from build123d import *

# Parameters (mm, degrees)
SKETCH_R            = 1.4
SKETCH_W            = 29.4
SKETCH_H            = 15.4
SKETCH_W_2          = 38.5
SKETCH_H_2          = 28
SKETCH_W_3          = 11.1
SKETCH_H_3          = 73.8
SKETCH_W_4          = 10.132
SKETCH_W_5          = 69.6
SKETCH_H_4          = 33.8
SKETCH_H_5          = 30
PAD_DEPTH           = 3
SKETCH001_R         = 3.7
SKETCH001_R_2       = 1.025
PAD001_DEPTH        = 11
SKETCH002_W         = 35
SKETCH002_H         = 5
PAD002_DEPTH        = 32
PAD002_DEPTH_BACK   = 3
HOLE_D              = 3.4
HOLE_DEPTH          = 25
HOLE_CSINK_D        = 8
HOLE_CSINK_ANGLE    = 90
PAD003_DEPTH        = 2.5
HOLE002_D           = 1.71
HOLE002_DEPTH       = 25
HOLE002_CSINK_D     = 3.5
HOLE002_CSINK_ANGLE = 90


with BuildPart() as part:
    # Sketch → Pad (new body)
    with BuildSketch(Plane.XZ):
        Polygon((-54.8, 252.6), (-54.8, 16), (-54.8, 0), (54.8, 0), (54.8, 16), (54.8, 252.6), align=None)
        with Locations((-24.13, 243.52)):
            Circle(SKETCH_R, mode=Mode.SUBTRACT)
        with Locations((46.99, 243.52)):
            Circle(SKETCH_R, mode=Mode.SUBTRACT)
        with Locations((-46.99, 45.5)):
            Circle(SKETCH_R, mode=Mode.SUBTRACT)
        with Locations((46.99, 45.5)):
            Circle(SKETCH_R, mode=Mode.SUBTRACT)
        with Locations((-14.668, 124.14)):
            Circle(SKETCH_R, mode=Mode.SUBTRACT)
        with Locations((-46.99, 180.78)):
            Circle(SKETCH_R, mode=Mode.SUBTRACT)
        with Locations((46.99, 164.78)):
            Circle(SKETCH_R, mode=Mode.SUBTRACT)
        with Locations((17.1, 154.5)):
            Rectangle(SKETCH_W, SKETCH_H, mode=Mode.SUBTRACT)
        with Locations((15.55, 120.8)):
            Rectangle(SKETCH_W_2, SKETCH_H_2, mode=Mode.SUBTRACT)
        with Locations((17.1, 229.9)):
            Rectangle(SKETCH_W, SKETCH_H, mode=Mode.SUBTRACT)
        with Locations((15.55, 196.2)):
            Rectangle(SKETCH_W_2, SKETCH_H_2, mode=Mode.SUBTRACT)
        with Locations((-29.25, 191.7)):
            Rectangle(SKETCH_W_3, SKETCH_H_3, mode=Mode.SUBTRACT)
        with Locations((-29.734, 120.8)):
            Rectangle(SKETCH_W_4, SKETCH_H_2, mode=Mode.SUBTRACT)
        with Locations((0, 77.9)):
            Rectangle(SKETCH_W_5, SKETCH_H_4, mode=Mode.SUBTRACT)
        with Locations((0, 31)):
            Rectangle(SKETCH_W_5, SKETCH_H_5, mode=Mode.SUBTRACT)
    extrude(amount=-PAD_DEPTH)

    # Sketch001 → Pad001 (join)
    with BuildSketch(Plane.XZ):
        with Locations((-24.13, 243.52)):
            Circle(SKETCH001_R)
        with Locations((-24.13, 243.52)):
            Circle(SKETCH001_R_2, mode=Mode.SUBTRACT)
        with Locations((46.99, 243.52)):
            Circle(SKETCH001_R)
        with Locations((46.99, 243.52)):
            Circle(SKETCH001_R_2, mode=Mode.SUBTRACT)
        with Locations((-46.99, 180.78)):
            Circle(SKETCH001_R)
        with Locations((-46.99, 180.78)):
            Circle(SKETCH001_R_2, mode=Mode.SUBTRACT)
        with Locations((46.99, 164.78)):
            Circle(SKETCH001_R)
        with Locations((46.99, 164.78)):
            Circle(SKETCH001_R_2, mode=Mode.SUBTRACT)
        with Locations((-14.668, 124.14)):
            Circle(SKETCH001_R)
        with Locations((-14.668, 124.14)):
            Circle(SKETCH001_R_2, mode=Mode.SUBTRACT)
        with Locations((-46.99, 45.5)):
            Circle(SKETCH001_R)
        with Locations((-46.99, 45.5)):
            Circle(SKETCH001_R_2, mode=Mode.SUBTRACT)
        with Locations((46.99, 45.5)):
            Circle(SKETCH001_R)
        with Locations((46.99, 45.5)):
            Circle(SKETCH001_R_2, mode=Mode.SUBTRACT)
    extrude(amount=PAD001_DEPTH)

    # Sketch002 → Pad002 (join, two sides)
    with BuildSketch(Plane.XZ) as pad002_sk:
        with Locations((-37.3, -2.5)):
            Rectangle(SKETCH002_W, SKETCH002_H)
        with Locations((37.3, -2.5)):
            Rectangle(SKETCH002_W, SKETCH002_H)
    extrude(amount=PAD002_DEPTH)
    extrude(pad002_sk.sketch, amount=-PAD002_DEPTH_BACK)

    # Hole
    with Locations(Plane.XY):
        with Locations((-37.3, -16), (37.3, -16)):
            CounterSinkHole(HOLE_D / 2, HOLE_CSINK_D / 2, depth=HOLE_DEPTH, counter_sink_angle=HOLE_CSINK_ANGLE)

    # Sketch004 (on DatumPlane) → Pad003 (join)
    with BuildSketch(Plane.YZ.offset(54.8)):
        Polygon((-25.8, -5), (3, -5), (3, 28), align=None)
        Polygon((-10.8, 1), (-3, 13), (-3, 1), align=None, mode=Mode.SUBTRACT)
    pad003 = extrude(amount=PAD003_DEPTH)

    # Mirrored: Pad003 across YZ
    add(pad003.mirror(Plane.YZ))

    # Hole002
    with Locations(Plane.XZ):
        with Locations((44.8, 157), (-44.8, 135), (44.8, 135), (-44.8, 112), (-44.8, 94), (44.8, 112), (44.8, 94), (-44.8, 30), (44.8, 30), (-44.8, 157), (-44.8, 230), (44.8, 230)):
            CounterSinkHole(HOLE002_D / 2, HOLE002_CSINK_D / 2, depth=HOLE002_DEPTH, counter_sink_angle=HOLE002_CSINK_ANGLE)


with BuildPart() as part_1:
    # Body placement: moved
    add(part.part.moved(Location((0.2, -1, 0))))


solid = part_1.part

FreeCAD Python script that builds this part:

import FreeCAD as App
import Part
import Sketcher

doc = App.newDocument("Part")
body = doc.addObject("PartDesign::Body", "Body")

sketch1 = body.newObject("Sketcher::SketchObject", "Sketch")
sketch1.AttachmentSupport = (doc.getObject("XZ_Plane"), [""])
sketch1.MapMode = "FlatFace"
sketch1.addGeometry(Part.LineSegment(App.Vector(-54.8, 252.6, 0), App.Vector(-54.8, 0, 0)), False)
sketch1.addGeometry(Part.LineSegment(App.Vector(-54.8, 0, 0), App.Vector(54.8, 0, 0)), False)
sketch1.addGeometry(Part.LineSegment(App.Vector(54.8, 0, 0), App.Vector(54.8, 252.6, 0)), False)
sketch1.addGeometry(Part.LineSegment(App.Vector(54.8, 252.6, 0), App.Vector(-54.8, 252.6, 0)), False)
sketch1.addGeometry(Part.Circle(App.Vector(-46.99, 45.5, 0), App.Vector(0, 0, 1), 1.4), False)
sketch1.addGeometry(Part.LineSegment(App.Vector(-24.668, 106.8, 0), App.Vector(-34.8, 106.8, 0)), False)
sketch1.addGeometry(Part.LineSegment(App.Vector(-34.8, 106.8, 0), App.Vector(-34.8, 134.8, 0)), False)
sketch1.addGeometry(Part.LineSegment(App.Vector(-34.8, 134.8, 0), App.Vector(-24.668, 134.8, 0)), False)
sketch1.addGeometry(Part.LineSegment(App.Vector(-24.668, 134.8, 0), App.Vector(-24.668, 106.8, 0)), False)
sketch1.addGeometry(Part.Circle(App.Vector(-14.668, 124.14, 0), App.Vector(0, 0, 1), 1.4), False)
sketch1.addGeometry(Part.LineSegment(App.Vector(34.8, 16, 0), App.Vector(-34.8, 16, 0)), False)
sketch1.addGeometry(Part.LineSegment(App.Vector(-34.8, 16, 0), App.Vector(-34.8, 46, 0)), False)
sketch1.addGeometry(Part.LineSegment(App.Vector(-34.8, 46, 0), App.Vector(34.8, 46, 0)), False)
sketch1.addGeometry(Part.LineSegment(App.Vector(34.8, 46, 0), App.Vector(34.8, 16, 0)), False)
sketch1.addGeometry(Part.Circle(App.Vector(46.99, 45.5, 0), App.Vector(0, 0, 1), 1.4), False)
sketch1.addGeometry(Part.LineSegment(App.Vector(34.8, 61, 0), App.Vector(-34.8, 61, 0)), False)
sketch1.addGeometry(Part.LineSegment(App.Vector(-34.8, 61, 0), App.Vector(-34.8, 94.8, 0)), False)
sketch1.addGeometry(Part.LineSegment(App.Vector(-34.8, 94.8, 0), App.Vector(34.8, 94.8, 0)), False)
sketch1.addGeometry(Part.LineSegment(App.Vector(34.8, 94.8, 0), App.Vector(34.8, 61, 0)), False)
sketch1.addGeometry(Part.LineSegment(App.Vector(34.8, 106.8, 0), App.Vector(-3.7, 106.8, 0)), False)
sketch1.addGeometry(Part.LineSegment(App.Vector(-3.7, 106.8, 0), App.Vector(-3.7, 134.8, 0)), False)
sketch1.addGeometry(Part.LineSegment(App.Vector(-3.7, 134.8, 0), App.Vector(34.8, 134.8, 0)), False)
sketch1.addGeometry(Part.LineSegment(App.Vector(34.8, 134.8, 0), App.Vector(34.8, 106.8, 0)), False)
sketch1.addGeometry(Part.Circle(App.Vector(-46.99, 180.78, 0), App.Vector(0, 0, 1), 1.4), False)
sketch1.addGeometry(Part.LineSegment(App.Vector(-23.7, 154.8, 0), App.Vector(-34.8, 154.8, 0)), False)
sketch1.addGeometry(Part.LineSegment(App.Vector(-34.8, 154.8, 0), App.Vector(-34.8, 228.6, 0)), False)
sketch1.addGeometry(Part.LineSegment(App.Vector(-34.8, 228.6, 0), App.Vector(-23.7, 228.6, 0)), False)
sketch1.addGeometry(Part.LineSegment(App.Vector(-23.7, 228.6, 0), App.Vector(-23.7, 154.8, 0)), False)
sketch1.addGeometry(Part.Circle(App.Vector(-24.13, 243.52, 0), App.Vector(0, 0, 1), 1.4), False)
sketch1.addGeometry(Part.LineSegment(App.Vector(31.8, 146.8, 0), App.Vector(2.4, 146.8, 0)), False)
sketch1.addGeometry(Part.LineSegment(App.Vector(2.4, 146.8, 0), App.Vector(2.4, 162.2, 0)), False)
sketch1.addGeometry(Part.LineSegment(App.Vector(2.4, 162.2, 0), App.Vector(31.8, 162.2, 0)), False)
sketch1.addGeometry(Part.LineSegment(App.Vector(31.8, 162.2, 0), App.Vector(31.8, 146.8, 0)), False)
sketch1.addGeometry(Part.Circle(App.Vector(46.99, 164.78, 0), App.Vector(0, 0, 1), 1.4), False)
sketch1.addGeometry(Part.LineSegment(App.Vector(34.8, 182.2, 0), App.Vector(-3.7, 182.2, 0)), False)
sketch1.addGeometry(Part.LineSegment(App.Vector(-3.7, 182.2, 0), App.Vector(-3.7, 210.2, 0)), False)
sketch1.addGeometry(Part.LineSegment(App.Vector(-3.7, 210.2, 0), App.Vector(34.8, 210.2, 0)), False)
sketch1.addGeometry(Part.LineSegment(App.Vector(34.8, 210.2, 0), App.Vector(34.8, 182.2, 0)), False)
sketch1.addGeometry(Part.LineSegment(App.Vector(31.8, 222.2, 0), App.Vector(2.4, 222.2, 0)), False)
sketch1.addGeometry(Part.LineSegment(App.Vector(2.4, 222.2, 0), App.Vector(2.4, 237.6, 0)), False)
sketch1.addGeometry(Part.LineSegment(App.Vector(2.4, 237.6, 0), App.Vector(31.8, 237.6, 0)), False)
sketch1.addGeometry(Part.LineSegment(App.Vector(31.8, 237.6, 0), App.Vector(31.8, 222.2, 0)), False)
sketch1.addGeometry(Part.Circle(App.Vector(46.99, 243.52, 0), App.Vector(0, 0, 1), 1.4), False)
sketch1.addConstraint(Sketcher.Constraint("Coincident", 0, 2, 1, 1))
sketch1.addConstraint(Sketcher.Constraint("Coincident", 1, 2, 2, 1))
sketch1.addConstraint(Sketcher.Constraint("Coincident", 2, 2, 3, 1))
sketch1.addConstraint(Sketcher.Constraint("Coincident", 3, 2, 0, 1))
sketch1.addConstraint(Sketcher.Constraint("Coincident", 5, 2, 6, 1))
sketch1.addConstraint(Sketcher.Constraint("Coincident", 6, 2, 7, 1))
sketch1.addConstraint(Sketcher.Constraint("Coincident", 7, 2, 8, 1))
sketch1.addConstraint(Sketcher.Constraint("Coincident", 8, 2, 5, 1))
sketch1.addConstraint(Sketcher.Constraint("Coincident", 10, 2, 11, 1))
sketch1.addConstraint(Sketcher.Constraint("Coincident", 11, 2, 12, 1))
sketch1.addConstraint(Sketcher.Constraint("Coincident", 12, 2, 13, 1))
sketch1.addConstraint(Sketcher.Constraint("Coincident", 13, 2, 10, 1))
sketch1.addConstraint(Sketcher.Constraint("Coincident", 15, 2, 16, 1))
sketch1.addConstraint(Sketcher.Constraint("Coincident", 16, 2, 17, 1))
sketch1.addConstraint(Sketcher.Constraint("Coincident", 17, 2, 18, 1))
sketch1.addConstraint(Sketcher.Constraint("Coincident", 18, 2, 15, 1))
sketch1.addConstraint(Sketcher.Constraint("Coincident", 19, 2, 20, 1))
sketch1.addConstraint(Sketcher.Constraint("Coincident", 20, 2, 21, 1))
sketch1.addConstraint(Sketcher.Constraint("Coincident", 21, 2, 22, 1))
sketch1.addConstraint(Sketcher.Constraint("Coincident", 22, 2, 19, 1))
sketch1.addConstraint(Sketcher.Constraint("Coincident", 24, 2, 25, 1))
sketch1.addConstraint(Sketcher.Constraint("Coincident", 25, 2, 26, 1))
sketch1.addConstraint(Sketcher.Constraint("Coincident", 26, 2, 27, 1))
sketch1.addConstraint(Sketcher.Constraint("Coincident", 27, 2, 24, 1))
sketch1.addConstraint(Sketcher.Constraint("Coincident", 29, 2, 30, 1))
sketch1.addConstraint(Sketcher.Constraint("Coincident", 30, 2, 31, 1))
sketch1.addConstraint(Sketcher.Constraint("Coincident", 31, 2, 32, 1))
sketch1.addConstraint(Sketcher.Constraint("Coincident", 32, 2, 29, 1))
sketch1.addConstraint(Sketcher.Constraint("Coincident", 34, 2, 35, 1))
sketch1.addConstraint(Sketcher.Constraint("Coincident", 35, 2, 36, 1))
sketch1.addConstraint(Sketcher.Constraint("Coincident", 36, 2, 37, 1))
sketch1.addConstraint(Sketcher.Constraint("Coincident", 37, 2, 34, 1))
sketch1.addConstraint(Sketcher.Constraint("Coincident", 38, 2, 39, 1))
sketch1.addConstraint(Sketcher.Constraint("Coincident", 39, 2, 40, 1))
sketch1.addConstraint(Sketcher.Constraint("Coincident", 40, 2, 41, 1))
sketch1.addConstraint(Sketcher.Constraint("Coincident", 41, 2, 38, 1))
sketch1.addConstraint(Sketcher.Constraint("Vertical", 0))
sketch1.addConstraint(Sketcher.Constraint("Horizontal", 1))
sketch1.addConstraint(Sketcher.Constraint("Vertical", 2))
sketch1.addConstraint(Sketcher.Constraint("Horizontal", 3))
sketch1.addConstraint(Sketcher.Constraint("Horizontal", 5))
sketch1.addConstraint(Sketcher.Constraint("Vertical", 6))
sketch1.addConstraint(Sketcher.Constraint("Horizontal", 7))
sketch1.addConstraint(Sketcher.Constraint("Vertical", 8))
sketch1.addConstraint(Sketcher.Constraint("Horizontal", 10))
sketch1.addConstraint(Sketcher.Constraint("Vertical", 11))
sketch1.addConstraint(Sketcher.Constraint("Horizontal", 12))
sketch1.addConstraint(Sketcher.Constraint("Vertical", 13))
sketch1.addConstraint(Sketcher.Constraint("Horizontal", 15))
sketch1.addConstraint(Sketcher.Constraint("Vertical", 16))
sketch1.addConstraint(Sketcher.Constraint("Horizontal", 17))
sketch1.addConstraint(Sketcher.Constraint("Vertical", 18))
sketch1.addConstraint(Sketcher.Constraint("Horizontal", 19))
sketch1.addConstraint(Sketcher.Constraint("Vertical", 20))
sketch1.addConstraint(Sketcher.Constraint("Horizontal", 21))
sketch1.addConstraint(Sketcher.Constraint("Vertical", 22))
sketch1.addConstraint(Sketcher.Constraint("Horizontal", 24))
sketch1.addConstraint(Sketcher.Constraint("Vertical", 25))
sketch1.addConstraint(Sketcher.Constraint("Horizontal", 26))
sketch1.addConstraint(Sketcher.Constraint("Vertical", 27))
sketch1.addConstraint(Sketcher.Constraint("Horizontal", 29))
sketch1.addConstraint(Sketcher.Constraint("Vertical", 30))
sketch1.addConstraint(Sketcher.Constraint("Horizontal", 31))
sketch1.addConstraint(Sketcher.Constraint("Vertical", 32))
sketch1.addConstraint(Sketcher.Constraint("Horizontal", 34))
sketch1.addConstraint(Sketcher.Constraint("Vertical", 35))
sketch1.addConstraint(Sketcher.Constraint("Horizontal", 36))
sketch1.addConstraint(Sketcher.Constraint("Vertical", 37))
sketch1.addConstraint(Sketcher.Constraint("Horizontal", 38))
sketch1.addConstraint(Sketcher.Constraint("Vertical", 39))
sketch1.addConstraint(Sketcher.Constraint("Horizontal", 40))
sketch1.addConstraint(Sketcher.Constraint("Vertical", 41))
sketch1.addConstraint(Sketcher.Constraint("Equal", 4, 9))
sketch1.addConstraint(Sketcher.Constraint("Equal", 9, 14))
sketch1.addConstraint(Sketcher.Constraint("Equal", 14, 23))
sketch1.addConstraint(Sketcher.Constraint("Equal", 23, 28))
sketch1.addConstraint(Sketcher.Constraint("Equal", 28, 33))
sketch1.addConstraint(Sketcher.Constraint("Equal", 33, 42))
sketch1.addConstraint(Sketcher.Constraint("Symmetric", 0, 2, 1, 2, -1, 1))
sketch1.addConstraint(Sketcher.Constraint("Symmetric", 4, 3, 14, 3, -2))
sketch1.addConstraint(Sketcher.Constraint("Symmetric", 6, 2, 21, 2, -2))
sketch1.addConstraint(Sketcher.Constraint("Horizontal", 28, 3, 42, 3))
sketch1.addConstraint(Sketcher.Constraint("Horizontal", 8, 2, 19, 2))
sketch1.addConstraint(Sketcher.Constraint("Vertical", 4, 3, 23, 3))
sketch1.addConstraint(Sketcher.Constraint("Vertical", 14, 3, 33, 3))
sketch1.addConstraint(Sketcher.Constraint("Vertical", 33, 3, 42, 3))
sketch1.addConstraint(Sketcher.Constraint("Vertical", 6, 2, 10, 2))
sketch1.addConstraint(Sketcher.Constraint("Vertical", 11, 2, 15, 2))
sketch1.addConstraint(Sketcher.Constraint("Vertical", 13, 2, 17, 2))
sketch1.addConstraint(Sketcher.Constraint("Vertical", 18, 2, 21, 2))
sketch1.addConstraint(Sketcher.Constraint("Vertical", 16, 2, 24, 2))
sketch1.addConstraint(Sketcher.Constraint("Vertical", 20, 2, 34, 2))
sketch1.addConstraint(Sketcher.Constraint("Vertical", 22, 2, 36, 2))
sketch1.addConstraint(Sketcher.Constraint("Vertical", 30, 2, 38, 2))
sketch1.addConstraint(Sketcher.Constraint("Vertical", 32, 2, 40, 2))
sketch1.addConstraint(Sketcher.Constraint("Equal", 22, 35))
sketch1.addConstraint(Sketcher.Constraint("Equal", 32, 39))
sketch1.addConstraint(Sketcher.Constraint("Diameter", 4, 2.8))
sketch1.addConstraint(Sketcher.Constraint("DistanceY", 6, 1, 6, 2, 28.0))
sketch1.addConstraint(Sketcher.Constraint("DistanceY", 11, 1, 11, 2, 30.0))
sketch1.addConstraint(Sketcher.Constraint("DistanceX", 1, 1, 1, 2, 109.6))
sketch1.addConstraint(Sketcher.Constraint("DistanceX", 10, 2, 10, 1, 69.6))
sketch1.addConstraint(Sketcher.Constraint("DistanceX", 19, 2, 19, 1, 38.5))
sketch1.addConstraint(Sketcher.Constraint("DistanceX", 24, 2, 24, 1, 11.1))
sketch1.addConstraint(Sketcher.Constraint("DistanceX", 29, 2, 29, 1, 29.4))
sketch1.addConstraint(Sketcher.Constraint("DistanceY", 0, 2, 0, 1, 252.6))
sketch1.addConstraint(Sketcher.Constraint("DistanceY", 16, 1, 16, 2, 33.8))
sketch1.addConstraint(Sketcher.Constraint("DistanceY", 25, 1, 25, 2, 73.8))
sketch1.addConstraint(Sketcher.Constraint("DistanceY", 30, 1, 30, 2, 15.4))
sketch1.addConstraint(Sketcher.Constraint("DistanceY", -1, 1, 10, 2, 16.0))
sketch1.addConstraint(Sketcher.Constraint("DistanceY", -1, 1, 15, 2, 61.0))
sketch1.addConstraint(Sketcher.Constraint("DistanceY", 33, 3, 23, 3, 16.0))
sketch1.addConstraint(Sketcher.Constraint("DistanceX", 7, 2, 9, 3, 10.0))
sketch1.addConstraint(Sketcher.Constraint("DistanceY", 16, 2, 5, 2, 12.0))
sketch1.addConstraint(Sketcher.Constraint("DistanceY", 6, 2, 24, 2, 20.0))
sketch1.addConstraint(Sketcher.Constraint("DistanceY", 20, 2, 29, 2, 12.0))
sketch1.addConstraint(Sketcher.Constraint("DistanceX", 31, 2, 21, 2, 3.0))
sketch1.addConstraint(Sketcher.Constraint("DistanceY", 30, 2, 34, 2, 20.0))
sketch1.addConstraint(Sketcher.Constraint("DistanceY", 35, 2, 38, 2, 12.0))
sketch1.addConstraint(Sketcher.Constraint("DistanceY", -1, 1, 4, 3, 45.5))
sketch1.addConstraint(Sketcher.Constraint("DistanceX", 5, 2, 5, 1, 10.132))
sketch1.addConstraint(Sketcher.Constraint("DistanceX", 4, 3, -1, 1, 46.99))
sketch1.addConstraint(Sketcher.Constraint("DistanceY", -1, 1, 9, 3, 124.14))
sketch1.addConstraint(Sketcher.Constraint("DistanceY", -1, 1, 23, 3, 180.78))
sketch1.addConstraint(Sketcher.Constraint("DistanceX", 28, 3, -1, 1, 24.13))
sketch1.addConstraint(Sketcher.Constraint("DistanceY", -1, 1, 28, 3, 243.52))
pad1 = body.newObject("PartDesign::Pad", "Pad")
pad1.Profile = sketch1
pad1.Length = 3
pad1.Reversed = True

sketch2 = body.newObject("Sketcher::SketchObject", "Sketch001")
sketch2.AttachmentSupport = (doc.getObject("XZ_Plane"), [""])
sketch2.MapMode = "FlatFace"
sketch2.addGeometry(Part.Circle(App.Vector(-24.13, 243.52, 0), App.Vector(0, 0, 1), 3.7), False)
sketch2.addGeometry(Part.Circle(App.Vector(-24.13, 243.52, 0), App.Vector(0, 0, 1), 1.025), False)
sketch2.addGeometry(Part.Circle(App.Vector(46.99, 243.52, 0), App.Vector(0, 0, 1), 3.7), False)
sketch2.addGeometry(Part.Circle(App.Vector(46.99, 243.52, 0), App.Vector(0, 0, 1), 1.025), False)
sketch2.addGeometry(Part.Circle(App.Vector(-46.99, 180.78, 0), App.Vector(0, 0, 1), 3.7), False)
sketch2.addGeometry(Part.Circle(App.Vector(-46.99, 180.78, 0), App.Vector(0, 0, 1), 1.025), False)
sketch2.addGeometry(Part.Circle(App.Vector(46.99, 164.78, 0), App.Vector(0, 0, 1), 3.7), False)
sketch2.addGeometry(Part.Circle(App.Vector(46.99, 164.78, 0), App.Vector(0, 0, 1), 1.025), False)
sketch2.addGeometry(Part.Circle(App.Vector(-14.668, 124.14, 0), App.Vector(0, 0, 1), 3.7), False)
sketch2.addGeometry(Part.Circle(App.Vector(-14.668, 124.14, 0), App.Vector(0, 0, 1), 1.025), False)
sketch2.addGeometry(Part.Circle(App.Vector(-46.99, 45.5, 0), App.Vector(0, 0, 1), 3.7), False)
sketch2.addGeometry(Part.Circle(App.Vector(-46.99, 45.5, 0), App.Vector(0, 0, 1), 1.025), False)
sketch2.addGeometry(Part.Circle(App.Vector(46.99, 45.5, 0), App.Vector(0, 0, 1), 3.7), False)
sketch2.addGeometry(Part.Circle(App.Vector(46.99, 45.5, 0), App.Vector(0, 0, 1), 1.025), False)
sketch2.addConstraint(Sketcher.Constraint("Coincident", 1, 3, 0, 3))
sketch2.addConstraint(Sketcher.Constraint("Coincident", 3, 3, 2, 3))
sketch2.addConstraint(Sketcher.Constraint("Coincident", 5, 3, 4, 3))
sketch2.addConstraint(Sketcher.Constraint("Coincident", 7, 3, 6, 3))
sketch2.addConstraint(Sketcher.Constraint("Coincident", 9, 3, 8, 3))
sketch2.addConstraint(Sketcher.Constraint("Coincident", 11, 3, 10, 3))
sketch2.addConstraint(Sketcher.Constraint("Coincident", 13, 3, 12, 3))
sketch2.addConstraint(Sketcher.Constraint("Equal", 0, 2))
sketch2.addConstraint(Sketcher.Constraint("Equal", 1, 3))
sketch2.addConstraint(Sketcher.Constraint("Equal", 2, 4))
sketch2.addConstraint(Sketcher.Constraint("Equal", 3, 5))
sketch2.addConstraint(Sketcher.Constraint("Equal", 4, 6))
sketch2.addConstraint(Sketcher.Constraint("Equal", 5, 7))
sketch2.addConstraint(Sketcher.Constraint("Equal", 6, 8))
sketch2.addConstraint(Sketcher.Constraint("Equal", 7, 9))
sketch2.addConstraint(Sketcher.Constraint("Equal", 8, 10))
sketch2.addConstraint(Sketcher.Constraint("Equal", 9, 11))
sketch2.addConstraint(Sketcher.Constraint("Equal", 10, 12))
sketch2.addConstraint(Sketcher.Constraint("Equal", 11, 13))
sketch2.addConstraint(Sketcher.Constraint("Symmetric", 10, 3, 12, 3, -2))
sketch2.addConstraint(Sketcher.Constraint("Horizontal", 1, 3, 2, 3))
sketch2.addConstraint(Sketcher.Constraint("Vertical", 3, 3, 6, 3))
sketch2.addConstraint(Sketcher.Constraint("Vertical", 5, 3, 10, 3))
sketch2.addConstraint(Sketcher.Constraint("Vertical", 7, 3, 12, 3))
sketch2.addConstraint(Sketcher.Constraint("Diameter", 0, 7.4))
sketch2.addConstraint(Sketcher.Constraint("Diameter", 1, 2.05))
sketch2.addConstraint(Sketcher.Constraint("DistanceY", 6, 3, 4, 3, 16.0))
sketch2.addConstraint(Sketcher.Constraint("DistanceY", -1, 1, 10, 3, 45.5))
sketch2.addConstraint(Sketcher.Constraint("DistanceX", 0, 3, -1, 1, 24.13))
sketch2.addConstraint(Sketcher.Constraint("DistanceY", -1, 1, 0, 3, 243.52))
sketch2.addConstraint(Sketcher.Constraint("DistanceX", -1, 1, 2, 3, 46.99))
sketch2.addConstraint(Sketcher.Constraint("DistanceY", -1, 1, 4, 3, 180.78))
sketch2.addConstraint(Sketcher.Constraint("DistanceY", -1, 1, 8, 3, 124.14))
sketch2.addConstraint(Sketcher.Constraint("DistanceX", 8, 3, -1, 1, 14.668))
pad2 = body.newObject("PartDesign::Pad", "Pad001")
pad2.Profile = sketch2
pad2.Length = 11

sketch3 = body.newObject("Sketcher::SketchObject", "Sketch002")
sketch3.AttachmentSupport = (doc.getObject("XZ_Plane"), [""])
sketch3.MapMode = "FlatFace"
sketch3.addGeometry(Part.LineSegment(App.Vector(-54.8, 0, 0), App.Vector(-54.8, -5, 0)), False)
sketch3.addGeometry(Part.LineSegment(App.Vector(-54.8, -5, 0), App.Vector(-19.8, -5, 0)), False)
sketch3.addGeometry(Part.LineSegment(App.Vector(-19.8, -5, 0), App.Vector(-19.8, 0, 0)), False)
sketch3.addGeometry(Part.LineSegment(App.Vector(-19.8, 0, 0), App.Vector(-54.8, 0, 0)), False)
sketch3.addGeometry(Part.LineSegment(App.Vector(19.8, 0, 0), App.Vector(19.8, -5, 0)), False)
sketch3.addGeometry(Part.LineSegment(App.Vector(19.8, -5, 0), App.Vector(54.8, -5, 0)), False)
sketch3.addGeometry(Part.LineSegment(App.Vector(54.8, -5, 0), App.Vector(54.8, 0, 0)), False)
sketch3.addGeometry(Part.LineSegment(App.Vector(54.8, 0, 0), App.Vector(19.8, 0, 0)), False)
sketch3.addConstraint(Sketcher.Constraint("Coincident", 0, 2, 1, 1))
sketch3.addConstraint(Sketcher.Constraint("Coincident", 1, 2, 2, 1))
sketch3.addConstraint(Sketcher.Constraint("Coincident", 2, 2, 3, 1))
sketch3.addConstraint(Sketcher.Constraint("Coincident", 3, 2, 0, 1))
sketch3.addConstraint(Sketcher.Constraint("Coincident", 4, 2, 5, 1))
sketch3.addConstraint(Sketcher.Constraint("Coincident", 5, 2, 6, 1))
sketch3.addConstraint(Sketcher.Constraint("Coincident", 6, 2, 7, 1))
sketch3.addConstraint(Sketcher.Constraint("Coincident", 7, 2, 4, 1))
sketch3.addConstraint(Sketcher.Constraint("Vertical", 0))
sketch3.addConstraint(Sketcher.Constraint("Horizontal", 1))
sketch3.addConstraint(Sketcher.Constraint("Vertical", 2))
sketch3.addConstraint(Sketcher.Constraint("Horizontal", 3))
sketch3.addConstraint(Sketcher.Constraint("Vertical", 4))
sketch3.addConstraint(Sketcher.Constraint("Horizontal", 5))
sketch3.addConstraint(Sketcher.Constraint("Vertical", 6))
sketch3.addConstraint(Sketcher.Constraint("Horizontal", 7))
sketch3.addConstraint(Sketcher.Constraint("Symmetric", 3, 2, 6, 2, -1, 1))
sketch3.addConstraint(Sketcher.Constraint("Symmetric", 1, 2, 4, 2, -2))
sketch3.addConstraint(Sketcher.Constraint("PointOnObject", 2, 2, -1))
sketch3.addConstraint(Sketcher.Constraint("DistanceX", 1, 1, 1, 2, 35.0))
sketch3.addConstraint(Sketcher.Constraint("DistanceY", 0, 2, 0, 1, 5.0))
sketch3.addConstraint(Sketcher.Constraint("DistanceX", 0, 2, -1, 1, 54.8))
pad3 = body.newObject("PartDesign::Pad", "Pad002")
pad3.Profile = sketch3
pad3.Type = "TwoLengths"
pad3.Length = 32
pad3.Length2 = 3

sketch4 = body.newObject("Sketcher::SketchObject", "Sketch003")
sketch4.AttachmentSupport = (doc.getObject("XY_Plane"), [""])
sketch4.MapMode = "FlatFace"
sketch4.addGeometry(Part.Circle(App.Vector(-37.3, -16, 0), App.Vector(0, 0, 1), 1.7), False)
sketch4.addGeometry(Part.Circle(App.Vector(37.3, -16, 0), App.Vector(0, 0, 1), 1.7), False)
sketch4.addConstraint(Sketcher.Constraint("Equal", 0, 1))
sketch4.addConstraint(Sketcher.Constraint("Symmetric", 0, 3, 1, 3, -2))
sketch4.addConstraint(Sketcher.Constraint("Diameter", 0, 3.4))
sketch4.addConstraint(Sketcher.Constraint("DistanceY", 0, 3, -1, 1, 16.0))
sketch4.addConstraint(Sketcher.Constraint("DistanceX", 0, 3, -1, 1, 37.3))
doc.recompute()
hole = body.newObject("PartDesign::Hole", "Hole")
hole.Profile = sketch4
hole.ThreadType = "None"
hole.Diameter = 3.4
hole.DepthType = "Dimension"
hole.Depth = 25
hole.DrillPoint = "Flat"
hole.HoleCutType = "Countersink"
hole.HoleCutDiameter = 8
hole.HoleCutCountersinkAngle = 90

sketch5 = body.newObject("Sketcher::SketchObject", "Sketch004")
sketch5.AttachmentSupport = (doc.getObject("YZ_Plane"), [""])
sketch5.MapMode = "FlatFace"
sketch5.AttachmentOffset = App.Placement(App.Vector(0, 0, 54.8), App.Rotation())
sketch5.addGeometry(Part.LineSegment(App.Vector(-25.8, -5, 0), App.Vector(3, -5, 0)), False)
sketch5.addGeometry(Part.LineSegment(App.Vector(3, -5, 0), App.Vector(3, 28, 0)), False)
sketch5.addGeometry(Part.LineSegment(App.Vector(3, 28, 0), App.Vector(-25.8, -5, 0)), False)
sketch5.addGeometry(Part.LineSegment(App.Vector(-3, 1, 0), App.Vector(-10.8, 1, 0)), False)
sketch5.addGeometry(Part.LineSegment(App.Vector(-10.8, 1, 0), App.Vector(-3, 13, 0)), False)
sketch5.addGeometry(Part.LineSegment(App.Vector(-3, 13, 0), App.Vector(-3, 1, 0)), False)
sketch5.addConstraint(Sketcher.Constraint("Coincident", 0, 2, 1, 1))
sketch5.addConstraint(Sketcher.Constraint("Coincident", 1, 2, 2, 1))
sketch5.addConstraint(Sketcher.Constraint("Coincident", 2, 2, 0, 1))
sketch5.addConstraint(Sketcher.Constraint("Coincident", 3, 2, 4, 1))
sketch5.addConstraint(Sketcher.Constraint("Coincident", 4, 2, 5, 1))
sketch5.addConstraint(Sketcher.Constraint("Coincident", 5, 2, 3, 1))
sketch5.addConstraint(Sketcher.Constraint("Horizontal", 0))
sketch5.addConstraint(Sketcher.Constraint("Vertical", 1))
sketch5.addConstraint(Sketcher.Constraint("Horizontal", 3))
sketch5.addConstraint(Sketcher.Constraint("Vertical", 5))
sketch5.addConstraint(Sketcher.Constraint("DistanceY", 1, 1, 1, 2, 33.0))
sketch5.addConstraint(Sketcher.Constraint("DistanceY", 5, 2, 5, 1, 12.0))
sketch5.addConstraint(Sketcher.Constraint("DistanceX", 0, 1, 0, 2, 28.8))
sketch5.addConstraint(Sketcher.Constraint("DistanceX", 3, 2, 3, 1, 7.8))
sketch5.addConstraint(Sketcher.Constraint("DistanceX", -1, 1, 0, 2, 3.0))
sketch5.addConstraint(Sketcher.Constraint("DistanceY", 0, 2, -1, 1, 5.0))
sketch5.addConstraint(Sketcher.Constraint("DistanceY", -1, 1, 3, 2, 1.0))
sketch5.addConstraint(Sketcher.Constraint("DistanceX", 4, 2, -1, 1, 3.0))
pad4 = body.newObject("PartDesign::Pad", "Pad003")
pad4.Profile = sketch5
pad4.Length = 2.5
doc.recompute()

mirrored = body.newObject("PartDesign::Mirrored", "Mirrored")
mirrored.Originals = [pad4]
mirrored.MirrorPlane = (doc.getObject("YZ_Plane"), [""])
body.Tip = mirrored

sketch6 = body.newObject("Sketcher::SketchObject", "Sketch005")
sketch6.AttachmentSupport = (doc.getObject("XZ_Plane"), [""])
sketch6.MapMode = "FlatFace"
sketch6.addGeometry(Part.Circle(App.Vector(44.8, 157, 0), App.Vector(0, 0, 1), 0.855), False)
sketch6.addGeometry(Part.Circle(App.Vector(-44.8, 135, 0), App.Vector(0, 0, 1), 0.855), False)
sketch6.addGeometry(Part.Circle(App.Vector(44.8, 135, 0), App.Vector(0, 0, 1), 0.855), False)
sketch6.addGeometry(Part.Circle(App.Vector(-44.8, 112, 0), App.Vector(0, 0, 1), 0.855), False)
sketch6.addGeometry(Part.Circle(App.Vector(-44.8, 94, 0), App.Vector(0, 0, 1), 0.855), False)
sketch6.addGeometry(Part.Circle(App.Vector(44.8, 112, 0), App.Vector(0, 0, 1), 0.855), False)
sketch6.addGeometry(Part.Circle(App.Vector(44.8, 94, 0), App.Vector(0, 0, 1), 0.855), False)
sketch6.addGeometry(Part.Circle(App.Vector(-44.8, 30, 0), App.Vector(0, 0, 1), 0.855), False)
sketch6.addGeometry(Part.Circle(App.Vector(44.8, 30, 0), App.Vector(0, 0, 1), 0.855), False)
sketch6.addGeometry(Part.Circle(App.Vector(-44.8, 157, 0), App.Vector(0, 0, 1), 0.855), False)
sketch6.addGeometry(Part.Circle(App.Vector(-44.8, 230, 0), App.Vector(0, 0, 1), 0.855), False)
sketch6.addGeometry(Part.Circle(App.Vector(44.8, 230, 0), App.Vector(0, 0, 1), 0.855), False)
sketch6.addConstraint(Sketcher.Constraint("Equal", 0, 1))
sketch6.addConstraint(Sketcher.Constraint("Equal", 1, 2))
sketch6.addConstraint(Sketcher.Constraint("Equal", 2, 3))
sketch6.addConstraint(Sketcher.Constraint("Equal", 3, 4))
sketch6.addConstraint(Sketcher.Constraint("Equal", 4, 5))
sketch6.addConstraint(Sketcher.Constraint("Equal", 5, 6))
sketch6.addConstraint(Sketcher.Constraint("Equal", 6, 7))
sketch6.addConstraint(Sketcher.Constraint("Equal", 7, 8))
sketch6.addConstraint(Sketcher.Constraint("Equal", 8, 9))
sketch6.addConstraint(Sketcher.Constraint("Equal", 9, 10))
sketch6.addConstraint(Sketcher.Constraint("Equal", 10, 11))
sketch6.addConstraint(Sketcher.Constraint("Symmetric", 1, 3, 2, 3, -2))
sketch6.addConstraint(Sketcher.Constraint("Symmetric", 3, 3, 5, 3, -2))
sketch6.addConstraint(Sketcher.Constraint("Symmetric", 4, 3, 6, 3, -2))
sketch6.addConstraint(Sketcher.Constraint("Symmetric", 7, 3, 8, 3, -2))
sketch6.addConstraint(Sketcher.Constraint("Symmetric", 0, 3, 9, 3, -2))
sketch6.addConstraint(Sketcher.Constraint("Symmetric", 10, 3, 11, 3, -2))
sketch6.addConstraint(Sketcher.Constraint("Vertical", 0, 3, 2, 3))
sketch6.addConstraint(Sketcher.Constraint("Vertical", 1, 3, 3, 3))
sketch6.addConstraint(Sketcher.Constraint("Vertical", 3, 3, 4, 3))
sketch6.addConstraint(Sketcher.Constraint("Vertical", 4, 3, 7, 3))
sketch6.addConstraint(Sketcher.Constraint("Vertical", 9, 3, 10, 3))
sketch6.addConstraint(Sketcher.Constraint("Diameter", 0, 1.71))
sketch6.addConstraint(Sketcher.Constraint("DistanceY", -1, 1, 0, 3, 157.0))
sketch6.addConstraint(Sketcher.Constraint("DistanceY", -1, 1, 1, 3, 135.0))
sketch6.addConstraint(Sketcher.Constraint("DistanceY", -1, 1, 3, 3, 112.0))
sketch6.addConstraint(Sketcher.Constraint("DistanceY", -1, 1, 4, 3, 94.0))
sketch6.addConstraint(Sketcher.Constraint("DistanceY", -1, 1, 7, 3, 30.0))
sketch6.addConstraint(Sketcher.Constraint("DistanceY", -1, 1, 10, 3, 230.0))
sketch6.addConstraint(Sketcher.Constraint("DistanceX", -1, 1, 0, 3, 44.8))
doc.recompute()
hole2 = body.newObject("PartDesign::Hole", "Hole001")
hole2.Profile = sketch6
hole2.ThreadType = "None"
hole2.Diameter = 1.71
hole2.DepthType = "Dimension"
hole2.Depth = 25
hole2.DrillPoint = "Flat"
hole2.HoleCutType = "Countersink"
hole2.HoleCutDiameter = 3.5
hole2.HoleCutCountersinkAngle = 90
body2 = doc.addObject("PartDesign::Body", "Body001")
doc.recompute()

body.Placement = App.Placement(App.Vector(0.2, -1, 0), App.Rotation(App.Vector(0, 0, 1), 0))
boolean = body2.newObject("PartDesign::Boolean", "Boolean")
boolean.Type = "Fuse"
boolean.addObjects([body])

doc.recompute()
